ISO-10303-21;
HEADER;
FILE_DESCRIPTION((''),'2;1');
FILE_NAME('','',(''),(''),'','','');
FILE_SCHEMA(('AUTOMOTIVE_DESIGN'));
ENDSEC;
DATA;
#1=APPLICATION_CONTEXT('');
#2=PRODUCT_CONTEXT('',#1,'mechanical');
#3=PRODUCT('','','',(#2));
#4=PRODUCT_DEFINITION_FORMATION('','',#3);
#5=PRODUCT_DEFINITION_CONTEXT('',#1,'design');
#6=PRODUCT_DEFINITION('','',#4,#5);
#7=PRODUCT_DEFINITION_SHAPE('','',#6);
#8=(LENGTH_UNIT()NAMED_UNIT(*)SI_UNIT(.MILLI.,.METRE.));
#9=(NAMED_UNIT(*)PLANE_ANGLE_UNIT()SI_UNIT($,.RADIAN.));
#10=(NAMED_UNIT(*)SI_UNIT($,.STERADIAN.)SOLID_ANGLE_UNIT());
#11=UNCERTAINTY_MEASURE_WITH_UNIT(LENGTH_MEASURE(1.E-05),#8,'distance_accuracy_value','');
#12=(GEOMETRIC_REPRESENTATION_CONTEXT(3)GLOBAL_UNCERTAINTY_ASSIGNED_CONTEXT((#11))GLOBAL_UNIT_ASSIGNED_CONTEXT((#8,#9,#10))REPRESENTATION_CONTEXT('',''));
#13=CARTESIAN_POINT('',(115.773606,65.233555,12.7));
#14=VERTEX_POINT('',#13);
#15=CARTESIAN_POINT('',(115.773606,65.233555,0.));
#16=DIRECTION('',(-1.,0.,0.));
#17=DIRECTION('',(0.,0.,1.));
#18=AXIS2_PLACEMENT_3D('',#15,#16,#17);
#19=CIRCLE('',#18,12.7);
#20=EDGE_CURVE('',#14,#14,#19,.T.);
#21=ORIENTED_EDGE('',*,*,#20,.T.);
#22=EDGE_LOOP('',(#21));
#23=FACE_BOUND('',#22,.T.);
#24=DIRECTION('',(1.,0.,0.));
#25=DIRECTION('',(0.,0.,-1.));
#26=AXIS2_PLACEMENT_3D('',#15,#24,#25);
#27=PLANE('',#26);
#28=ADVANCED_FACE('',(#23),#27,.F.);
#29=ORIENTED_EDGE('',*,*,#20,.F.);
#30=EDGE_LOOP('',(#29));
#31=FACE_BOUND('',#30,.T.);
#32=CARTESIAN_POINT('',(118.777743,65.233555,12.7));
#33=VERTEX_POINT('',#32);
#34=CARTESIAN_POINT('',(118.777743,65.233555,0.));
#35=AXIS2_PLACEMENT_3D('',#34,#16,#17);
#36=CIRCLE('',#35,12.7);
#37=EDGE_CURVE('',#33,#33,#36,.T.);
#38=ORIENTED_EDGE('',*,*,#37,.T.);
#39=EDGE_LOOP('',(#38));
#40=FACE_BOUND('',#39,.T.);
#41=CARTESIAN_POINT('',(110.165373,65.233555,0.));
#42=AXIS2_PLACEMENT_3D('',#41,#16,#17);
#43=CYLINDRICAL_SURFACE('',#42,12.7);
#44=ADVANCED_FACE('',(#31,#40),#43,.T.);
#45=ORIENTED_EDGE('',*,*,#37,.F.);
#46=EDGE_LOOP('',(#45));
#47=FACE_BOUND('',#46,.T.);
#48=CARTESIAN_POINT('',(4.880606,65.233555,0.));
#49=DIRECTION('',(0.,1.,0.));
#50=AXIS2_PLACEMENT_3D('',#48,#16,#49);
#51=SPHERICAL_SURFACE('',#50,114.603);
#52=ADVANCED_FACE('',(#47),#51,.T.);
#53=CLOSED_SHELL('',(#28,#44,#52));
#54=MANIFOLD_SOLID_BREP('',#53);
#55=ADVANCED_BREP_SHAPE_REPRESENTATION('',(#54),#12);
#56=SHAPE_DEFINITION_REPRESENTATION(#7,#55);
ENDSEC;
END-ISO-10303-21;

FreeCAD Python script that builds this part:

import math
import FreeCAD as App
import Part
import Sketcher
from FreeCAD import Vector
Q = App.Units.Quantity

doc = App.newDocument("Part")
body = doc.addObject("PartDesign::Body", "Body")

# Sketch on XY plane
sketch1 = body.newObject("Sketcher::SketchObject", "Sketch")
sketch1.AttachmentSupport = (doc.getObject("XY_Plane"), [""])
sketch1.MapMode = "FlatFace"
sketch1.addGeometry([
    Part.LineSegment(Vector(115.8, 77.9, 0), Vector(115.8, 65.2, 0)),
    Part.LineSegment(Vector(115.8, 65.2, 0), Vector(119.5, 65.2, 0)),
    Part.ArcOfCircle(Part.Circle(Vector(4.9, 65.2, 0), Vector(0, 0, 1), 114.6), math.radians(0), math.radians(6.36)),
    Part.LineSegment(Vector(118.8, 77.9, 0), Vector(115.8, 77.9, 0)),
], False)
sketch1.addGeometry(Part.LineSegment(Vector(4.9, 65.2, 0), Vector(119.5, 65.2, 0)), True)  # axis
sketch1.addConstraint([
    Sketcher.Constraint("Coincident", 0, 2, 1, 1),
    Sketcher.Constraint("Coincident", 1, 2, 2, 1),
    Sketcher.Constraint("Coincident", 2, 2, 3, 1),
    Sketcher.Constraint("Coincident", 3, 2, 0, 1),
    Sketcher.Constraint("Vertical", 0),
    Sketcher.Constraint("Horizontal", 1),
    Sketcher.Constraint("Horizontal", 3),
    Sketcher.Constraint("Horizontal", 4),
    Sketcher.Constraint("Coincident", 4, 1, 2, 3),
    Sketcher.Constraint("Coincident", 4, 2, 1, 2),
    Sketcher.Constraint("DistanceY", 0, 2, 0, 1, Q("0.5 in")),
    Sketcher.Constraint("Radius", 2, Q("114.603 mm")),
    Sketcher.Constraint("DistanceX", 1, 1, 1, 2, Q("3.71 mm")),
    Sketcher.Constraint("DistanceX", -1, 1, 2, 3, Q("4.880606 mm")),
    Sketcher.Constraint("DistanceY", -1, 1, 2, 3, Q("65.233555 mm")),
])
revolution = body.newObject("PartDesign::Revolution", "Revolution")
revolution.Profile = sketch1
revolution.ReferenceAxis = (sketch1, ["Axis0"])
revolution.Angle = 360

doc.recompute()
